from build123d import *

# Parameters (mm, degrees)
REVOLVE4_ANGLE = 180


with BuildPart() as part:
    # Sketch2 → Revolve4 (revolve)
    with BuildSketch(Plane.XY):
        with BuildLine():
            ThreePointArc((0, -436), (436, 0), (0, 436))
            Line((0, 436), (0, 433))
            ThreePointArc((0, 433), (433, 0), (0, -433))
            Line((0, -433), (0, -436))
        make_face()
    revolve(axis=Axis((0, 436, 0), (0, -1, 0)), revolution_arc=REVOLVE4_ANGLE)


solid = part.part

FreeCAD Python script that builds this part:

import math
import FreeCAD as App
import Part
import Sketcher

V = App.Vector

doc = App.newDocument("Part")
body = doc.addObject("PartDesign::Body", "Body")

sketch1 = body.newObject("Sketcher::SketchObject", "Sketch")
sketch1.AttachmentSupport = (doc.getObject("XY_Plane"), [""])
sketch1.MapMode = "FlatFace"
sketch1.addGeometry([
    Part.ArcOfCircle(Part.Circle(V(0, 0, 0), V(0, 0, 1), 436), math.radians(-90), math.radians(90)),
    Part.LineSegment(V(0, 436, 0), V(0, 433, 0)),
    Part.ArcOfCircle(Part.Circle(V(0, 0, 0), V(0, 0, 1), 433), math.radians(-90), math.radians(90)),
    Part.LineSegment(V(0, -433, 0), V(0, -436, 0)),
], False)
sketch1.addConstraint([
    Sketcher.Constraint("Coincident", 0, 2, 1, 1),
    Sketcher.Constraint("Coincident", 1, 2, 2, 2),
    Sketcher.Constraint("Coincident", 2, 1, 3, 1),
    Sketcher.Constraint("Coincident", 3, 2, 0, 1),
    Sketcher.Constraint("Vertical", 1),
    Sketcher.Constraint("Vertical", 3),
    Sketcher.Constraint("Coincident", 0, 3, -1, 1),
    Sketcher.Constraint("Coincident", 2, 3, -1, 1),
    Sketcher.Constraint("PointOnObject", 1, 2, -2),
    Sketcher.Constraint("PointOnObject", 3, 2, -2),
    Sketcher.Constraint("Radius", 0, 436.0),
    Sketcher.Constraint("Radius", 2, 433.0),
])
revolution = body.newObject("PartDesign::Revolution", "Revolution")
revolution.Profile = sketch1
revolution.ReferenceAxis = (sketch1, ["V_Axis"])
revolution.Angle = 180
revolution.Reversed = True

doc.recompute()
